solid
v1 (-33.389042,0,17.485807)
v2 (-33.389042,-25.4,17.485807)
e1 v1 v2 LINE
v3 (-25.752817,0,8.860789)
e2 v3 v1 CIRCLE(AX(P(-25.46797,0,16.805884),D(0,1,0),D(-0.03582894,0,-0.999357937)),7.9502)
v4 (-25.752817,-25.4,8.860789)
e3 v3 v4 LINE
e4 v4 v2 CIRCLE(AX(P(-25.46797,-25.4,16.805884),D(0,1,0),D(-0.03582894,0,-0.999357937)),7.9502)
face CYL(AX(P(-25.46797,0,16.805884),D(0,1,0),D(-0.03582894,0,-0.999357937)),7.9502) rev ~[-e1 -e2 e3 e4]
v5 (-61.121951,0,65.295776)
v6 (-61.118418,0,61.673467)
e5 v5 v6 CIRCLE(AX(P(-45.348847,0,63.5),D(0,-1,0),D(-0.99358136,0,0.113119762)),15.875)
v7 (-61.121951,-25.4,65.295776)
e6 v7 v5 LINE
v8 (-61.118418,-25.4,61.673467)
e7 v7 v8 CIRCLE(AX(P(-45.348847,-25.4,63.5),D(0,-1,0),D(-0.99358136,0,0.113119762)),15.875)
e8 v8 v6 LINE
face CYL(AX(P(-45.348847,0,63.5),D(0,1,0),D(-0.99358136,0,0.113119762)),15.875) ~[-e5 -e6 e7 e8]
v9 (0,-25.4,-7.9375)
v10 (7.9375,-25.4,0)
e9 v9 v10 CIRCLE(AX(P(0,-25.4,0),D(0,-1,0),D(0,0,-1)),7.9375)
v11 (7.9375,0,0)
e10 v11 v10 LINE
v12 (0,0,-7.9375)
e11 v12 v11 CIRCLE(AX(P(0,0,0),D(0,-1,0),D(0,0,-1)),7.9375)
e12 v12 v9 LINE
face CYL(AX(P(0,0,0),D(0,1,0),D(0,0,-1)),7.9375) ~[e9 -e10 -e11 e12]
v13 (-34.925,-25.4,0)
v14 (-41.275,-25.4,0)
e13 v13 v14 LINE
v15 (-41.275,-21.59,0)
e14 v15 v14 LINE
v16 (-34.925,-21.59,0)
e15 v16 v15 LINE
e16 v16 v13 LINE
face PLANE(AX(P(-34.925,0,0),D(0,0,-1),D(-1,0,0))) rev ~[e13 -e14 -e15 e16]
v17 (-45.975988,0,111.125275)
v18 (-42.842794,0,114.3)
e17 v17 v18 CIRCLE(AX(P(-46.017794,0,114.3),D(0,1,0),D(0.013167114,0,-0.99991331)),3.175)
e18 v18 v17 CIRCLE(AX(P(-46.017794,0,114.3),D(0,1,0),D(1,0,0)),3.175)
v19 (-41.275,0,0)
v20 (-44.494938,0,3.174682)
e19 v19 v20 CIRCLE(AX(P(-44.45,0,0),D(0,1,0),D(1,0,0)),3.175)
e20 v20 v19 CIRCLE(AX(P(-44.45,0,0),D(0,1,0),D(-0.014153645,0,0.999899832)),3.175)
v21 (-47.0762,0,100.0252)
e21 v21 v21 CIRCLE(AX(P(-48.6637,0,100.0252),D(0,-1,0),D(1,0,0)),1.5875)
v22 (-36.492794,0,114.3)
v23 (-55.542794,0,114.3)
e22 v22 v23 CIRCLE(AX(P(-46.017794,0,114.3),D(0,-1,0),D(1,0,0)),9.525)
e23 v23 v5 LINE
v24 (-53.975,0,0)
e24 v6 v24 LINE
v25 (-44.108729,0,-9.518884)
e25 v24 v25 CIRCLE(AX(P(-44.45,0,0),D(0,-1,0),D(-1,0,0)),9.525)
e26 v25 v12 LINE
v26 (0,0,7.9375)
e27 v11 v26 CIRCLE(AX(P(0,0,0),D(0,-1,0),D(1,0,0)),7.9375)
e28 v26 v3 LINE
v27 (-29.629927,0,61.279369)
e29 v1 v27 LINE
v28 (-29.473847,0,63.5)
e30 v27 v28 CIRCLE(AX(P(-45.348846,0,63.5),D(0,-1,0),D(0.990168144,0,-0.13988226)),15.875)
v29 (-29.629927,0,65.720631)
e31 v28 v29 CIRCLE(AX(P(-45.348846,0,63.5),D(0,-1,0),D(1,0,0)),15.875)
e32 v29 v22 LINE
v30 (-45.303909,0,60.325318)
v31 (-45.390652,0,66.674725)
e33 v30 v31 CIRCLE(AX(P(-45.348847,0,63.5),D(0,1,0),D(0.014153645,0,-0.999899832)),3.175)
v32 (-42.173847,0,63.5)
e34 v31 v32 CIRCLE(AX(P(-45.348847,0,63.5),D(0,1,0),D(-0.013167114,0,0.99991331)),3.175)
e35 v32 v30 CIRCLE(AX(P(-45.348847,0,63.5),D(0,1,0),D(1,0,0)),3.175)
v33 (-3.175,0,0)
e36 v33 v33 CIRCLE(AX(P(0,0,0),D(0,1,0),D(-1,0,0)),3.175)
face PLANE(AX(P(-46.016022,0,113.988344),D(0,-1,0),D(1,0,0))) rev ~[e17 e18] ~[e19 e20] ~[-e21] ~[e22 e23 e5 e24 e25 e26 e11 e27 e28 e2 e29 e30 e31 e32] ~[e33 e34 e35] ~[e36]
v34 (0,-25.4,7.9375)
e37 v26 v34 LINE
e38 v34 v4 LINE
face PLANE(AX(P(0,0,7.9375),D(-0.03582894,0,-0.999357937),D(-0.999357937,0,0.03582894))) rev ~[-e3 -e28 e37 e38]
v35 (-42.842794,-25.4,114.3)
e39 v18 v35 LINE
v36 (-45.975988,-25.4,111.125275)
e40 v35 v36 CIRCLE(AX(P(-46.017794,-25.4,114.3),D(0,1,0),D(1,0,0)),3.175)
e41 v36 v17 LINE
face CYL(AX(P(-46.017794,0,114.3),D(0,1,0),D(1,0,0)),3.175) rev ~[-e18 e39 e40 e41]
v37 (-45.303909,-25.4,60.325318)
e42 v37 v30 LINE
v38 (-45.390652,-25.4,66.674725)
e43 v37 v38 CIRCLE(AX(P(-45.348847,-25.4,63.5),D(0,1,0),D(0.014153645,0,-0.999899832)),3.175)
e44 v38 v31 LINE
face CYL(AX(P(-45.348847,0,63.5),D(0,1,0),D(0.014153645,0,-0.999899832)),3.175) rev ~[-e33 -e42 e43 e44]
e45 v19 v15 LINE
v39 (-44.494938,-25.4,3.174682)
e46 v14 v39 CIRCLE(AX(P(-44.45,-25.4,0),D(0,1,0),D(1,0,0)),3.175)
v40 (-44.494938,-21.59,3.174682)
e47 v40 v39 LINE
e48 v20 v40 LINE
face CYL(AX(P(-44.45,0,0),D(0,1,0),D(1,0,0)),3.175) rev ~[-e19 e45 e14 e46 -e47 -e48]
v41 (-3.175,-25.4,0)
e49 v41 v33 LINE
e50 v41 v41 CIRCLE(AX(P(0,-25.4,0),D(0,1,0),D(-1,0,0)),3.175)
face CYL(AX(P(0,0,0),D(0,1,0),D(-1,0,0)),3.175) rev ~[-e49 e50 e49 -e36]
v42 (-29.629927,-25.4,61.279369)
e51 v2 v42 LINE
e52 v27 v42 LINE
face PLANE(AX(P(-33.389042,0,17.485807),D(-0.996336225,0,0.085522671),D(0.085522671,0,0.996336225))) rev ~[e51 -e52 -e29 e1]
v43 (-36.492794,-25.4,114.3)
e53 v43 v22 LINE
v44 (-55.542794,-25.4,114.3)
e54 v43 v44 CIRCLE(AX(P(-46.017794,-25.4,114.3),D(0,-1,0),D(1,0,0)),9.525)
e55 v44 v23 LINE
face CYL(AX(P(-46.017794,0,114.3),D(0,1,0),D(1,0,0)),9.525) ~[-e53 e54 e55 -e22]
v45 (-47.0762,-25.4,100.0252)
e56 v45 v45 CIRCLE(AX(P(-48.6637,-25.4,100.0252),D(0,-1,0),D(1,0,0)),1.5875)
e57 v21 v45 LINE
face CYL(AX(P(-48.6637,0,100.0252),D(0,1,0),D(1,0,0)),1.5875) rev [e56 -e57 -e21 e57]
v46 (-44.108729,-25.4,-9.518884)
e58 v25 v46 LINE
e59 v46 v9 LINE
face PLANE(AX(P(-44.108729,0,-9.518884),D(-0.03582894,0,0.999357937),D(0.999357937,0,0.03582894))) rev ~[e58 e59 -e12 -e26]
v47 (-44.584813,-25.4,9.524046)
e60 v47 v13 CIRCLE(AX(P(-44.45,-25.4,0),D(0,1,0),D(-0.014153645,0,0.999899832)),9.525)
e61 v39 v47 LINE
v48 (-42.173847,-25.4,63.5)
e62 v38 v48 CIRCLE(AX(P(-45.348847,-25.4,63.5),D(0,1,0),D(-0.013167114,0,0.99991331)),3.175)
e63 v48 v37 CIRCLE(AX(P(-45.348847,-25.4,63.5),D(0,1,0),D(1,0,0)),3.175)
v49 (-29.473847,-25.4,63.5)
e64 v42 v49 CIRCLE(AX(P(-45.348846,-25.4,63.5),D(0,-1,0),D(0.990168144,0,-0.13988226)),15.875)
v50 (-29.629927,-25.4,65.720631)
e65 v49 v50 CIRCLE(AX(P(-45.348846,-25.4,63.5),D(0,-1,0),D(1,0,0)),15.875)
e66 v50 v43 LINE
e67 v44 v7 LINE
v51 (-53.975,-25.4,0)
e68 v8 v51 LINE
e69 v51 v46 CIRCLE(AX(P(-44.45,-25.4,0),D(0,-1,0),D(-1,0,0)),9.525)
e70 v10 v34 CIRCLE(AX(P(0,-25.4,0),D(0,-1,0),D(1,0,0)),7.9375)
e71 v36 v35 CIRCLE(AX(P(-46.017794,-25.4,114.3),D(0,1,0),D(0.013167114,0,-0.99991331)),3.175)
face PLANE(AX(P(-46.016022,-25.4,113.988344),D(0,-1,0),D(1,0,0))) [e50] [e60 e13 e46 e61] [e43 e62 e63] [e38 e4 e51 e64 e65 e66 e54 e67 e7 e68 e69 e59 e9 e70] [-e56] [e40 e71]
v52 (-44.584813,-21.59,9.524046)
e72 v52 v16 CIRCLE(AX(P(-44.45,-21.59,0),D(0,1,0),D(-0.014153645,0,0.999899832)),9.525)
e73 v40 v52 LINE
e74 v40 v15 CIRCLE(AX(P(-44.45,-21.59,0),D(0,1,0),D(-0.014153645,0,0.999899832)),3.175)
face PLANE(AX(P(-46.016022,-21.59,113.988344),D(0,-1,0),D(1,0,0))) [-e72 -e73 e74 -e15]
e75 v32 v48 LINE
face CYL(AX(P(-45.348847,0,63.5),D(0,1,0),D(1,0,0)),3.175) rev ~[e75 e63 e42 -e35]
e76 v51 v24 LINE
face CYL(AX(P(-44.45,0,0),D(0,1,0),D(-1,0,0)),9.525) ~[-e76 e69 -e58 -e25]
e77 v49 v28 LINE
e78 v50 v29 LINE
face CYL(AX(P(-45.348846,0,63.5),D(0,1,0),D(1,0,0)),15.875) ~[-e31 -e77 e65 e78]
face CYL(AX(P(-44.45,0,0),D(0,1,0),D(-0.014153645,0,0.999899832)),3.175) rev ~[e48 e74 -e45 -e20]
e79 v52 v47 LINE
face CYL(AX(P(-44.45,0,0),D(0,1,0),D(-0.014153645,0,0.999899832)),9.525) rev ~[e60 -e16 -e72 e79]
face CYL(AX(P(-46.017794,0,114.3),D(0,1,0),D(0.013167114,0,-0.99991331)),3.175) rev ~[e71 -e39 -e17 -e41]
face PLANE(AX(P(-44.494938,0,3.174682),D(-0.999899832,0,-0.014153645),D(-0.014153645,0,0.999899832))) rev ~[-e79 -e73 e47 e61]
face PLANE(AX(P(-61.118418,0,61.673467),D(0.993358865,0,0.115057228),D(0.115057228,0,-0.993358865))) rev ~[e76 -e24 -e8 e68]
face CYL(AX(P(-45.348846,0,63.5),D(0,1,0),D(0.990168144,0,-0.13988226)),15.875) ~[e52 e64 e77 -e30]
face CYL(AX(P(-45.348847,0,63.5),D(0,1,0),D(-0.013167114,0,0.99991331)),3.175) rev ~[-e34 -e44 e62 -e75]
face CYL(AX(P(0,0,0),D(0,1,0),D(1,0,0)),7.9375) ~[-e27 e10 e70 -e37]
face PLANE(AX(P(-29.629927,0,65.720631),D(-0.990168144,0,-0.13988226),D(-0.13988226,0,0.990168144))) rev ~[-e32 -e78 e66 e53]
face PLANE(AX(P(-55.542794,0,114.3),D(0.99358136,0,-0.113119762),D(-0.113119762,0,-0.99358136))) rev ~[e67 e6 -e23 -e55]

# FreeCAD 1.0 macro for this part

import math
import FreeCAD as App
import Part
import Sketcher
Q = App.Units.Quantity

doc = App.newDocument("Part")
body = doc.addObject("PartDesign::Body", "Body")

# Sketch on XZ plane
sketch1 = body.newObject("Sketcher::SketchObject", "Sketch")
sketch1.AttachmentSupport = (doc.getObject("XZ_Plane"), [""])
sketch1.MapMode = "FlatFace"
sketch1.addGeometry([
    Part.ArcOfCircle(Part.Circle(App.Vector(-44.45, 0, 0), App.Vector(0, 0, 1), 9.525), math.radians(180), math.radians(272.053286)),  # 0
    Part.LineSegment(App.Vector(-44.108729, -9.518884, 0), App.Vector(0, -7.9375, 0)),  # 1
    Part.ArcOfCircle(Part.Circle(App.Vector(0, 0, 0), App.Vector(0, 0, 1), 7.9375), math.radians(-90), math.radians(0)),  # 2
    Part.ArcOfCircle(Part.Circle(App.Vector(0, 0, 0), App.Vector(0, 0, 1), 7.9375), math.radians(0), math.radians(90)),  # 3
    Part.LineSegment(App.Vector(0, 7.9375, 0), App.Vector(-25.752817, 8.860789, 0)),  # 4
    Part.ArcOfCircle(Part.Circle(App.Vector(-25.46797, 16.805884, 0), App.Vector(0, 0, 1), 7.9502), math.radians(175.093919), math.radians(267.946714)),  # 5
    Part.LineSegment(App.Vector(-33.389042, 17.485807, 0), App.Vector(-29.629927, 61.279369, 0)),  # 6
    Part.ArcOfCircle(Part.Circle(App.Vector(-45.348846, 63.5, 0), App.Vector(0, 0, 1), 15.875), math.radians(-8.041033), math.radians(0)),  # 7
    Part.ArcOfCircle(Part.Circle(App.Vector(-45.348846, 63.5, 0), App.Vector(0, 0, 1), 15.875), math.radians(0), math.radians(8.041033)),  # 8
    Part.LineSegment(App.Vector(-29.629927, 65.720631, 0), App.Vector(-36.492794, 114.3, 0)),  # 9
    Part.ArcOfCircle(Part.Circle(App.Vector(-46.017794, 114.3, 0), App.Vector(0, 0, 1), 9.525), math.radians(0), math.radians(180)),  # 10
    Part.LineSegment(App.Vector(-55.542794, 114.3, 0), App.Vector(-61.121951, 65.295776, 0)),  # 11
    Part.ArcOfCircle(Part.Circle(App.Vector(-45.348847, 63.5, 0), App.Vector(0, 0, 1), 15.875), math.radians(173.504812), math.radians(186.606926)),  # 12
    Part.LineSegment(App.Vector(-61.118418, 61.673467, 0), App.Vector(-53.975, 0, 0)),  # 13
    Part.ArcOfCircle(Part.Circle(App.Vector(-44.45, 0, 0), App.Vector(0, 0, 1), 9.525), math.radians(0), math.radians(90.810971)),  # 14
    Part.LineSegment(App.Vector(-34.925, 0, 0), App.Vector(-41.275, 0, 0)),  # 15
    Part.ArcOfCircle(Part.Circle(App.Vector(-44.45, 0, 0), App.Vector(0, 0, 1), 3.175), math.radians(90.810971), math.radians(360)),  # 16
    Part.LineSegment(App.Vector(-44.494938, 3.174682, 0), App.Vector(-44.584813, 9.524046, 0)),  # 17
    Part.Circle(App.Vector(0, 0, 0), App.Vector(0, 0, 1), 3.175),  # 18
    Part.ArcOfCircle(Part.Circle(App.Vector(-45.348847, 63.5, 0), App.Vector(0, 0, 1), 3.175), math.radians(0), math.radians(90.754442)),  # 19
    Part.ArcOfCircle(Part.Circle(App.Vector(-45.348847, 63.5, 0), App.Vector(0, 0, 1), 3.175), math.radians(-89.189029), math.radians(0)),  # 20
    Part.ArcOfCircle(Part.Circle(App.Vector(-45.348847, 63.5, 0), App.Vector(0, 0, 1), 3.175), math.radians(90.754442), math.radians(270.810971)),  # 21
    Part.Circle(App.Vector(-48.6637, 100.0252, 0), App.Vector(0, 0, 1), 1.5875),  # 22
    Part.ArcOfCircle(Part.Circle(App.Vector(-46.017794, 114.3, 0), App.Vector(0, 0, 1), 3.175), math.radians(0), math.radians(270.754442)),  # 23
    Part.ArcOfCircle(Part.Circle(App.Vector(-46.017794, 114.3, 0), App.Vector(0, 0, 1), 3.175), math.radians(-89.245558), math.radians(0)),  # 24
], False)
sketch1.addConstraint([
    Sketcher.Constraint("Tangent", 0, 2, 1, 1),
    Sketcher.Constraint("Coincident", 1, 2, 2, 1),
    Sketcher.Constraint("Tangent", 2, 2, 3, 1),
    Sketcher.Constraint("Coincident", 3, 2, 4, 1),
    Sketcher.Constraint("Tangent", 4, 2, 5, 2),
    Sketcher.Constraint("Tangent", 5, 1, 6, 1),
    Sketcher.Constraint("Coincident", 6, 2, 7, 1),
    Sketcher.Constraint("Tangent", 7, 2, 8, 1),
    Sketcher.Constraint("Tangent", 8, 2, 9, 1),
    Sketcher.Constraint("Coincident", 9, 2, 10, 1),
    Sketcher.Constraint("Coincident", 10, 2, 11, 1),
    Sketcher.Constraint("Tangent", 11, 2, 12, 1),
    Sketcher.Constraint("Tangent", 12, 2, 13, 1),
    Sketcher.Constraint("Coincident", 13, 2, 0, 1),
    Sketcher.Constraint("Coincident", 14, 1, 15, 1),
    Sketcher.Constraint("Coincident", 15, 2, 16, 2),
    Sketcher.Constraint("Coincident", 16, 1, 17, 1),
    Sketcher.Constraint("Coincident", 17, 2, 14, 2),
    Sketcher.Constraint("Tangent", 19, 1, 20, 2),
    Sketcher.Constraint("Tangent", 20, 1, 21, 2),
    Sketcher.Constraint("Tangent", 21, 1, 19, 2),
    Sketcher.Constraint("Tangent", 23, 1, 24, 2),
    Sketcher.Constraint("Coincident", 24, 1, 23, 2),
    Sketcher.Constraint("Horizontal", 15),
    Sketcher.Constraint("Coincident", 2, 3, -1, 1),
    Sketcher.Constraint("Coincident", 18, 3, -1, 1),
    Sketcher.Constraint("Coincident", 12, 3, 7, 3),
    Sketcher.Constraint("Coincident", 14, 3, 0, 3),
    Sketcher.Constraint("Coincident", 16, 3, 0, 3),
    Sketcher.Constraint("Coincident", 19, 3, 7, 3),
    Sketcher.Constraint("Coincident", 23, 3, 10, 3),
    Sketcher.Constraint("Equal", 2, 3),
    Sketcher.Constraint("Equal", 7, 8),
    Sketcher.Constraint("Equal", 0, 10),
    Sketcher.Constraint("Equal", 8, 12),
    Sketcher.Constraint("Equal", 10, 14),
    Sketcher.Constraint("Equal", 16, 18),
    Sketcher.Constraint("Equal", 18, 19),
    Sketcher.Constraint("Equal", 21, 23),
    Sketcher.Constraint("PointOnObject", 0, 3, -1),
    Sketcher.Constraint("PointOnObject", 1, 2, -2),
    Sketcher.Constraint("PointOnObject", 2, 2, -1),
    Sketcher.Constraint("PointOnObject", 3, 2, -2),
    Sketcher.Constraint("PointOnObject", 13, 2, -1),
    Sketcher.Constraint("PointOnObject", 14, 1, -1),
    Sketcher.Constraint("Horizontal", 21, 3, 7, 2),
    Sketcher.Constraint("Horizontal", 24, 3, 9, 2),
    Sketcher.Constraint("Horizontal", 9, 2, 10, 2),
    Sketcher.Constraint("Horizontal", 7, 2, 19, 1),
    Sketcher.Constraint("Horizontal", 10, 2, 23, 1),
    Sketcher.Constraint("Vertical", 6, 2, 8, 2),
    Sketcher.Constraint("Diameter", 18, Q("0.25 in")),
    Sketcher.Constraint("Diameter", 22, Q("0.125 in")),
    Sketcher.Constraint("Radius", 0, Q("0.375 in")),
    Sketcher.Constraint("Radius", 2, Q("0.3125 in")),
    Sketcher.Constraint("Radius", 5, Q("0.313 in")),
    Sketcher.Constraint("Radius", 7, Q("0.625 in")),
    Sketcher.Constraint("DistanceY", 8, 3, 10, 3, Q("2 in")),
    Sketcher.Constraint("DistanceY", -1, 1, 7, 3, Q("2.5 in")),
    Sketcher.Constraint("DistanceX", 0, 3, -1, 1, Q("1.75 in")),
    Sketcher.Constraint("DistanceY", -1, 1, 22, 3, Q("3.938 in")),
    Sketcher.Constraint("DistanceY", -1, 1, 11, 2, Q("2.5706999 in")),
    Sketcher.Constraint("DistanceX", 22, 3, -1, 1, 48.6637),
    Sketcher.Constraint("DistanceX", 5, 3, -1, 1, 25.46797),
    Sketcher.Constraint("DistanceY", -1, 1, 4, 2, 8.860789),
    Sketcher.Constraint("DistanceX", 11, 2, -1, 1, 61.121951),
    Sketcher.Constraint("DistanceY", -1, 1, 16, 1, 3.174682),
    Sketcher.Constraint("DistanceX", 20, 1, -1, 1, 45.303909),
    Sketcher.Constraint("DistanceX", 24, 1, -1, 1, 45.975988),
    Sketcher.Constraint("DistanceX", 17, 2, -1, 1, 44.584813),
    Sketcher.Constraint("DistanceX", 21, 1, -1, 1, 45.390652),
])
pad1 = body.newObject("PartDesign::Pad", "Pad")
pad1.Profile = sketch1
pad1.Length = Q("1 in")

# Sketch on XZ plane
sketch2 = body.newObject("Sketcher::SketchObject", "Sketch001")
sketch2.AttachmentSupport = (doc.getObject("XZ_Plane"), [""])
sketch2.MapMode = "FlatFace"
sketch2.addGeometry([
    Part.ArcOfCircle(Part.Circle(App.Vector(-44.45, 0, 0), App.Vector(0, 0, 1), 9.525), math.radians(180), math.radians(272.053286)),  # 0
    Part.LineSegment(App.Vector(-44.108729, -9.518884, 0), App.Vector(0, -7.9375, 0)),  # 1
    Part.ArcOfCircle(Part.Circle(App.Vector(0, 0, 0), App.Vector(0, 0, 1), 7.9375), math.radians(-90), math.radians(0)),  # 2
    Part.ArcOfCircle(Part.Circle(App.Vector(0, 0, 0), App.Vector(0, 0, 1), 7.9375), math.radians(0), math.radians(90)),  # 3
    Part.LineSegment(App.Vector(0, 7.9375, 0), App.Vector(-25.752817, 8.860789, 0)),  # 4
    Part.ArcOfCircle(Part.Circle(App.Vector(-25.46797, 16.805884, 0), App.Vector(0, 0, 1), 7.9502), math.radians(175.093919), math.radians(267.946714)),  # 5
    Part.LineSegment(App.Vector(-33.389042, 17.485807, 0), App.Vector(-29.629927, 61.279369, 0)),  # 6
    Part.ArcOfCircle(Part.Circle(App.Vector(-45.348846, 63.5, 0), App.Vector(0, 0, 1), 15.875), math.radians(-8.041033), math.radians(0)),  # 7
    Part.ArcOfCircle(Part.Circle(App.Vector(-45.348846, 63.5, 0), App.Vector(0, 0, 1), 15.875), math.radians(0), math.radians(8.041033)),  # 8
    Part.LineSegment(App.Vector(-29.629927, 65.720631, 0), App.Vector(-36.492794, 114.3, 0)),  # 9
    Part.ArcOfCircle(Part.Circle(App.Vector(-46.017794, 114.3, 0), App.Vector(0, 0, 1), 9.525), math.radians(0), math.radians(180)),  # 10
    Part.LineSegment(App.Vector(-55.542794, 114.3, 0), App.Vector(-61.121951, 65.295776, 0)),  # 11
    Part.ArcOfCircle(Part.Circle(App.Vector(-45.348847, 63.5, 0), App.Vector(0, 0, 1), 15.875), math.radians(173.504812), math.radians(186.606926)),  # 12
    Part.LineSegment(App.Vector(-61.118418, 61.673467, 0), App.Vector(-53.975, 0, 0)),  # 13
    Part.ArcOfCircle(Part.Circle(App.Vector(-44.45, 0, 0), App.Vector(0, 0, 1), 3.175), math.radians(90.810971), math.radians(360)),  # 14
    Part.ArcOfCircle(Part.Circle(App.Vector(-44.45, 0, 0), App.Vector(0, 0, 1), 3.175), math.radians(0), math.radians(90.810971)),  # 15
    Part.Circle(App.Vector(0, 0, 0), App.Vector(0, 0, 1), 3.175),  # 16
    Part.ArcOfCircle(Part.Circle(App.Vector(-45.348847, 63.5, 0), App.Vector(0, 0, 1), 3.175), math.radians(0), math.radians(90.754442)),  # 17
    Part.ArcOfCircle(Part.Circle(App.Vector(-45.348847, 63.5, 0), App.Vector(0, 0, 1), 3.175), math.radians(-89.189029), math.radians(0)),  # 18
    Part.ArcOfCircle(Part.Circle(App.Vector(-45.348847, 63.5, 0), App.Vector(0, 0, 1), 3.175), math.radians(90.754442), math.radians(270.810971)),  # 19
    Part.Circle(App.Vector(-48.6637, 100.0252, 0), App.Vector(0, 0, 1), 1.5875),  # 20
    Part.ArcOfCircle(Part.Circle(App.Vector(-46.017794, 114.3, 0), App.Vector(0, 0, 1), 3.175), math.radians(0), math.radians(270.754442)),  # 21
    Part.ArcOfCircle(Part.Circle(App.Vector(-46.017794, 114.3, 0), App.Vector(0, 0, 1), 3.175), math.radians(-89.245558), math.radians(0)),  # 22
], False)
sketch2.addConstraint([
    Sketcher.Constraint("Tangent", 0, 2, 1, 1),
    Sketcher.Constraint("Coincident", 1, 2, 2, 1),
    Sketcher.Constraint("Tangent", 2, 2, 3, 1),
    Sketcher.Constraint("Coincident", 3, 2, 4, 1),
    Sketcher.Constraint("Tangent", 4, 2, 5, 2),
    Sketcher.Constraint("Tangent", 5, 1, 6, 1),
    Sketcher.Constraint("Coincident", 6, 2, 7, 1),
    Sketcher.Constraint("Tangent", 7, 2, 8, 1),
    Sketcher.Constraint("Tangent", 8, 2, 9, 1),
    Sketcher.Constraint("Coincident", 9, 2, 10, 1),
    Sketcher.Constraint("Coincident", 10, 2, 11, 1),
    Sketcher.Constraint("Tangent", 11, 2, 12, 1),
    Sketcher.Constraint("Tangent", 12, 2, 13, 1),
    Sketcher.Constraint("Coincident", 13, 2, 0, 1),
    Sketcher.Constraint("Tangent", 14, 1, 15, 2),
    Sketcher.Constraint("Coincident", 15, 1, 14, 2),
    Sketcher.Constraint("Tangent", 17, 1, 18, 2),
    Sketcher.Constraint("Tangent", 18, 1, 19, 2),
    Sketcher.Constraint("Tangent", 19, 1, 17, 2),
    Sketcher.Constraint("Tangent", 21, 1, 22, 2),
    Sketcher.Constraint("Coincident", 22, 1, 21, 2),
    Sketcher.Constraint("Coincident", 2, 3, -1, 1),
    Sketcher.Constraint("Coincident", 16, 3, -1, 1),
    Sketcher.Constraint("Coincident", 12, 3, 7, 3),
    Sketcher.Constraint("Coincident", 14, 3, 0, 3),
    Sketcher.Constraint("Coincident", 17, 3, 7, 3),
    Sketcher.Constraint("Coincident", 21, 3, 10, 3),
    Sketcher.Constraint("Equal", 2, 3),
    Sketcher.Constraint("Equal", 7, 8),
    Sketcher.Constraint("Equal", 0, 10),
    Sketcher.Constraint("Equal", 8, 12),
    Sketcher.Constraint("Equal", 15, 16),
    Sketcher.Constraint("Equal", 16, 17),
    Sketcher.Constraint("Equal", 19, 21),
    Sketcher.Constraint("PointOnObject", 0, 3, -1),
    Sketcher.Constraint("PointOnObject", 1, 2, -2),
    Sketcher.Constraint("PointOnObject", 2, 2, -1),
    Sketcher.Constraint("PointOnObject", 3, 2, -2),
    Sketcher.Constraint("PointOnObject", 13, 2, -1),
    Sketcher.Constraint("PointOnObject", 15, 1, -1),
    Sketcher.Constraint("Horizontal", 19, 3, 7, 2),
    Sketcher.Constraint("Horizontal", 22, 3, 9, 2),
    Sketcher.Constraint("Horizontal", 9, 2, 10, 2),
    Sketcher.Constraint("Horizontal", 7, 2, 17, 1),
    Sketcher.Constraint("Horizontal", 10, 2, 21, 1),
    Sketcher.Constraint("Vertical", 6, 2, 8, 2),
    Sketcher.Constraint("Diameter", 16, Q("0.25 in")),
    Sketcher.Constraint("Diameter", 20, Q("0.125 in")),
    Sketcher.Constraint("Radius", 0, Q("0.375 in")),
    Sketcher.Constraint("Radius", 2, Q("0.3125 in")),
    Sketcher.Constraint("Radius", 5, Q("0.313 in")),
    Sketcher.Constraint("Radius", 7, Q("0.625 in")),
    Sketcher.Constraint("DistanceY", 8, 3, 10, 3, Q("2 in")),
    Sketcher.Constraint("DistanceY", -1, 1, 7, 3, Q("2.5 in")),
    Sketcher.Constraint("DistanceX", 0, 3, -1, 1, Q("1.75 in")),
    Sketcher.Constraint("DistanceY", -1, 1, 20, 3, Q("3.938 in")),
    Sketcher.Constraint("DistanceY", -1, 1, 11, 2, Q("2.5706999 in")),
    Sketcher.Constraint("DistanceX", 20, 3, -1, 1, 48.6637),
    Sketcher.Constraint("DistanceX", 5, 3, -1, 1, 25.46797),
    Sketcher.Constraint("DistanceY", -1, 1, 4, 2, 8.860789),
    Sketcher.Constraint("DistanceX", 11, 2, -1, 1, 61.121951),
    Sketcher.Constraint("DistanceY", -1, 1, 14, 1, 3.174682),
    Sketcher.Constraint("DistanceX", 18, 1, -1, 1, 45.303909),
    Sketcher.Constraint("DistanceX", 22, 1, -1, 1, 45.975988),
    Sketcher.Constraint("DistanceX", 19, 1, -1, 1, 45.390652),
])
pad2 = body.newObject("PartDesign::Pad", "Pad001")
pad2.Profile = sketch2
pad2.Length = Q("0.85 in")

doc.recompute()
